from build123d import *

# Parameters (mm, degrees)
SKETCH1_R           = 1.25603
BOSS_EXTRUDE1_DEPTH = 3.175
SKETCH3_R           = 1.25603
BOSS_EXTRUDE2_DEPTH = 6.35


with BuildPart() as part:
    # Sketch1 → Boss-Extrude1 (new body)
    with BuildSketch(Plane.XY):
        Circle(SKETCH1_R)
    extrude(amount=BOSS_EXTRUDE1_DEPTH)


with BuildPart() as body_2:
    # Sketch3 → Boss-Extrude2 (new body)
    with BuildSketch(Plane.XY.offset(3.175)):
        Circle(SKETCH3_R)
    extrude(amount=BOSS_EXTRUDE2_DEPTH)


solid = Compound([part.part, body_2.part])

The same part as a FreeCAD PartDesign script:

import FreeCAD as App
import Part
import Sketcher
Q = App.Units.Quantity

doc = App.newDocument("Part")
params = doc.addObject("Spreadsheet::Sheet", "Params")
for row, (alias, value) in enumerate([
    ("pad1_length", "0.125 in"),
    ("pad2_length", "0.25 in"),
], start=1):
    params.set(f"A{row}", alias)
    params.set(f"B{row}", "=" + value)
    params.setAlias(f"B{row}", alias)

body = doc.addObject("PartDesign::Body", "Body")

sketch1 = body.newObject("Sketcher::SketchObject", "Sketch")
sketch1.AttachmentSupport = (doc.getObject("XY_Plane"), [""])
sketch1.MapMode = "FlatFace"
sketch1.addGeometry(Part.Circle(App.Vector(0, 0, 0), App.Vector(0, 0, 1), 1.25603), False)
sketch1.addConstraint([
    Sketcher.Constraint("Coincident", 0, 3, -1, 1),
    Sketcher.Constraint("Diameter", 0, Q("0.0989 in")),
])
pad1 = body.newObject("PartDesign::Pad", "Pad")
pad1.Profile = sketch1
pad1.setExpression("Length", "Params.pad1_length")
body2 = doc.addObject("PartDesign::Body", "Body001")

sketch2 = body2.newObject("Sketcher::SketchObject", "Sketch001")
sketch2.AttachmentSupport = (doc.getObject("XY_Plane001"), [""])
sketch2.MapMode = "FlatFace"
sketch2.AttachmentOffset = App.Placement(App.Vector(0, 0, 0.125 * 25.4), App.Rotation())
sketch2.addGeometry(Part.Circle(App.Vector(0, 0, 0), App.Vector(0, 0, 1), 1.25603), False)
sketch2.addConstraint([
    Sketcher.Constraint("Coincident", 0, 3, -1, 1),
    Sketcher.Constraint("Diameter", 0, Q("0.0989 in")),
])
pad2 = body2.newObject("PartDesign::Pad", "Pad001")
pad2.Profile = sketch2
pad2.setExpression("Length", "Params.pad2_length")

doc.recompute()
